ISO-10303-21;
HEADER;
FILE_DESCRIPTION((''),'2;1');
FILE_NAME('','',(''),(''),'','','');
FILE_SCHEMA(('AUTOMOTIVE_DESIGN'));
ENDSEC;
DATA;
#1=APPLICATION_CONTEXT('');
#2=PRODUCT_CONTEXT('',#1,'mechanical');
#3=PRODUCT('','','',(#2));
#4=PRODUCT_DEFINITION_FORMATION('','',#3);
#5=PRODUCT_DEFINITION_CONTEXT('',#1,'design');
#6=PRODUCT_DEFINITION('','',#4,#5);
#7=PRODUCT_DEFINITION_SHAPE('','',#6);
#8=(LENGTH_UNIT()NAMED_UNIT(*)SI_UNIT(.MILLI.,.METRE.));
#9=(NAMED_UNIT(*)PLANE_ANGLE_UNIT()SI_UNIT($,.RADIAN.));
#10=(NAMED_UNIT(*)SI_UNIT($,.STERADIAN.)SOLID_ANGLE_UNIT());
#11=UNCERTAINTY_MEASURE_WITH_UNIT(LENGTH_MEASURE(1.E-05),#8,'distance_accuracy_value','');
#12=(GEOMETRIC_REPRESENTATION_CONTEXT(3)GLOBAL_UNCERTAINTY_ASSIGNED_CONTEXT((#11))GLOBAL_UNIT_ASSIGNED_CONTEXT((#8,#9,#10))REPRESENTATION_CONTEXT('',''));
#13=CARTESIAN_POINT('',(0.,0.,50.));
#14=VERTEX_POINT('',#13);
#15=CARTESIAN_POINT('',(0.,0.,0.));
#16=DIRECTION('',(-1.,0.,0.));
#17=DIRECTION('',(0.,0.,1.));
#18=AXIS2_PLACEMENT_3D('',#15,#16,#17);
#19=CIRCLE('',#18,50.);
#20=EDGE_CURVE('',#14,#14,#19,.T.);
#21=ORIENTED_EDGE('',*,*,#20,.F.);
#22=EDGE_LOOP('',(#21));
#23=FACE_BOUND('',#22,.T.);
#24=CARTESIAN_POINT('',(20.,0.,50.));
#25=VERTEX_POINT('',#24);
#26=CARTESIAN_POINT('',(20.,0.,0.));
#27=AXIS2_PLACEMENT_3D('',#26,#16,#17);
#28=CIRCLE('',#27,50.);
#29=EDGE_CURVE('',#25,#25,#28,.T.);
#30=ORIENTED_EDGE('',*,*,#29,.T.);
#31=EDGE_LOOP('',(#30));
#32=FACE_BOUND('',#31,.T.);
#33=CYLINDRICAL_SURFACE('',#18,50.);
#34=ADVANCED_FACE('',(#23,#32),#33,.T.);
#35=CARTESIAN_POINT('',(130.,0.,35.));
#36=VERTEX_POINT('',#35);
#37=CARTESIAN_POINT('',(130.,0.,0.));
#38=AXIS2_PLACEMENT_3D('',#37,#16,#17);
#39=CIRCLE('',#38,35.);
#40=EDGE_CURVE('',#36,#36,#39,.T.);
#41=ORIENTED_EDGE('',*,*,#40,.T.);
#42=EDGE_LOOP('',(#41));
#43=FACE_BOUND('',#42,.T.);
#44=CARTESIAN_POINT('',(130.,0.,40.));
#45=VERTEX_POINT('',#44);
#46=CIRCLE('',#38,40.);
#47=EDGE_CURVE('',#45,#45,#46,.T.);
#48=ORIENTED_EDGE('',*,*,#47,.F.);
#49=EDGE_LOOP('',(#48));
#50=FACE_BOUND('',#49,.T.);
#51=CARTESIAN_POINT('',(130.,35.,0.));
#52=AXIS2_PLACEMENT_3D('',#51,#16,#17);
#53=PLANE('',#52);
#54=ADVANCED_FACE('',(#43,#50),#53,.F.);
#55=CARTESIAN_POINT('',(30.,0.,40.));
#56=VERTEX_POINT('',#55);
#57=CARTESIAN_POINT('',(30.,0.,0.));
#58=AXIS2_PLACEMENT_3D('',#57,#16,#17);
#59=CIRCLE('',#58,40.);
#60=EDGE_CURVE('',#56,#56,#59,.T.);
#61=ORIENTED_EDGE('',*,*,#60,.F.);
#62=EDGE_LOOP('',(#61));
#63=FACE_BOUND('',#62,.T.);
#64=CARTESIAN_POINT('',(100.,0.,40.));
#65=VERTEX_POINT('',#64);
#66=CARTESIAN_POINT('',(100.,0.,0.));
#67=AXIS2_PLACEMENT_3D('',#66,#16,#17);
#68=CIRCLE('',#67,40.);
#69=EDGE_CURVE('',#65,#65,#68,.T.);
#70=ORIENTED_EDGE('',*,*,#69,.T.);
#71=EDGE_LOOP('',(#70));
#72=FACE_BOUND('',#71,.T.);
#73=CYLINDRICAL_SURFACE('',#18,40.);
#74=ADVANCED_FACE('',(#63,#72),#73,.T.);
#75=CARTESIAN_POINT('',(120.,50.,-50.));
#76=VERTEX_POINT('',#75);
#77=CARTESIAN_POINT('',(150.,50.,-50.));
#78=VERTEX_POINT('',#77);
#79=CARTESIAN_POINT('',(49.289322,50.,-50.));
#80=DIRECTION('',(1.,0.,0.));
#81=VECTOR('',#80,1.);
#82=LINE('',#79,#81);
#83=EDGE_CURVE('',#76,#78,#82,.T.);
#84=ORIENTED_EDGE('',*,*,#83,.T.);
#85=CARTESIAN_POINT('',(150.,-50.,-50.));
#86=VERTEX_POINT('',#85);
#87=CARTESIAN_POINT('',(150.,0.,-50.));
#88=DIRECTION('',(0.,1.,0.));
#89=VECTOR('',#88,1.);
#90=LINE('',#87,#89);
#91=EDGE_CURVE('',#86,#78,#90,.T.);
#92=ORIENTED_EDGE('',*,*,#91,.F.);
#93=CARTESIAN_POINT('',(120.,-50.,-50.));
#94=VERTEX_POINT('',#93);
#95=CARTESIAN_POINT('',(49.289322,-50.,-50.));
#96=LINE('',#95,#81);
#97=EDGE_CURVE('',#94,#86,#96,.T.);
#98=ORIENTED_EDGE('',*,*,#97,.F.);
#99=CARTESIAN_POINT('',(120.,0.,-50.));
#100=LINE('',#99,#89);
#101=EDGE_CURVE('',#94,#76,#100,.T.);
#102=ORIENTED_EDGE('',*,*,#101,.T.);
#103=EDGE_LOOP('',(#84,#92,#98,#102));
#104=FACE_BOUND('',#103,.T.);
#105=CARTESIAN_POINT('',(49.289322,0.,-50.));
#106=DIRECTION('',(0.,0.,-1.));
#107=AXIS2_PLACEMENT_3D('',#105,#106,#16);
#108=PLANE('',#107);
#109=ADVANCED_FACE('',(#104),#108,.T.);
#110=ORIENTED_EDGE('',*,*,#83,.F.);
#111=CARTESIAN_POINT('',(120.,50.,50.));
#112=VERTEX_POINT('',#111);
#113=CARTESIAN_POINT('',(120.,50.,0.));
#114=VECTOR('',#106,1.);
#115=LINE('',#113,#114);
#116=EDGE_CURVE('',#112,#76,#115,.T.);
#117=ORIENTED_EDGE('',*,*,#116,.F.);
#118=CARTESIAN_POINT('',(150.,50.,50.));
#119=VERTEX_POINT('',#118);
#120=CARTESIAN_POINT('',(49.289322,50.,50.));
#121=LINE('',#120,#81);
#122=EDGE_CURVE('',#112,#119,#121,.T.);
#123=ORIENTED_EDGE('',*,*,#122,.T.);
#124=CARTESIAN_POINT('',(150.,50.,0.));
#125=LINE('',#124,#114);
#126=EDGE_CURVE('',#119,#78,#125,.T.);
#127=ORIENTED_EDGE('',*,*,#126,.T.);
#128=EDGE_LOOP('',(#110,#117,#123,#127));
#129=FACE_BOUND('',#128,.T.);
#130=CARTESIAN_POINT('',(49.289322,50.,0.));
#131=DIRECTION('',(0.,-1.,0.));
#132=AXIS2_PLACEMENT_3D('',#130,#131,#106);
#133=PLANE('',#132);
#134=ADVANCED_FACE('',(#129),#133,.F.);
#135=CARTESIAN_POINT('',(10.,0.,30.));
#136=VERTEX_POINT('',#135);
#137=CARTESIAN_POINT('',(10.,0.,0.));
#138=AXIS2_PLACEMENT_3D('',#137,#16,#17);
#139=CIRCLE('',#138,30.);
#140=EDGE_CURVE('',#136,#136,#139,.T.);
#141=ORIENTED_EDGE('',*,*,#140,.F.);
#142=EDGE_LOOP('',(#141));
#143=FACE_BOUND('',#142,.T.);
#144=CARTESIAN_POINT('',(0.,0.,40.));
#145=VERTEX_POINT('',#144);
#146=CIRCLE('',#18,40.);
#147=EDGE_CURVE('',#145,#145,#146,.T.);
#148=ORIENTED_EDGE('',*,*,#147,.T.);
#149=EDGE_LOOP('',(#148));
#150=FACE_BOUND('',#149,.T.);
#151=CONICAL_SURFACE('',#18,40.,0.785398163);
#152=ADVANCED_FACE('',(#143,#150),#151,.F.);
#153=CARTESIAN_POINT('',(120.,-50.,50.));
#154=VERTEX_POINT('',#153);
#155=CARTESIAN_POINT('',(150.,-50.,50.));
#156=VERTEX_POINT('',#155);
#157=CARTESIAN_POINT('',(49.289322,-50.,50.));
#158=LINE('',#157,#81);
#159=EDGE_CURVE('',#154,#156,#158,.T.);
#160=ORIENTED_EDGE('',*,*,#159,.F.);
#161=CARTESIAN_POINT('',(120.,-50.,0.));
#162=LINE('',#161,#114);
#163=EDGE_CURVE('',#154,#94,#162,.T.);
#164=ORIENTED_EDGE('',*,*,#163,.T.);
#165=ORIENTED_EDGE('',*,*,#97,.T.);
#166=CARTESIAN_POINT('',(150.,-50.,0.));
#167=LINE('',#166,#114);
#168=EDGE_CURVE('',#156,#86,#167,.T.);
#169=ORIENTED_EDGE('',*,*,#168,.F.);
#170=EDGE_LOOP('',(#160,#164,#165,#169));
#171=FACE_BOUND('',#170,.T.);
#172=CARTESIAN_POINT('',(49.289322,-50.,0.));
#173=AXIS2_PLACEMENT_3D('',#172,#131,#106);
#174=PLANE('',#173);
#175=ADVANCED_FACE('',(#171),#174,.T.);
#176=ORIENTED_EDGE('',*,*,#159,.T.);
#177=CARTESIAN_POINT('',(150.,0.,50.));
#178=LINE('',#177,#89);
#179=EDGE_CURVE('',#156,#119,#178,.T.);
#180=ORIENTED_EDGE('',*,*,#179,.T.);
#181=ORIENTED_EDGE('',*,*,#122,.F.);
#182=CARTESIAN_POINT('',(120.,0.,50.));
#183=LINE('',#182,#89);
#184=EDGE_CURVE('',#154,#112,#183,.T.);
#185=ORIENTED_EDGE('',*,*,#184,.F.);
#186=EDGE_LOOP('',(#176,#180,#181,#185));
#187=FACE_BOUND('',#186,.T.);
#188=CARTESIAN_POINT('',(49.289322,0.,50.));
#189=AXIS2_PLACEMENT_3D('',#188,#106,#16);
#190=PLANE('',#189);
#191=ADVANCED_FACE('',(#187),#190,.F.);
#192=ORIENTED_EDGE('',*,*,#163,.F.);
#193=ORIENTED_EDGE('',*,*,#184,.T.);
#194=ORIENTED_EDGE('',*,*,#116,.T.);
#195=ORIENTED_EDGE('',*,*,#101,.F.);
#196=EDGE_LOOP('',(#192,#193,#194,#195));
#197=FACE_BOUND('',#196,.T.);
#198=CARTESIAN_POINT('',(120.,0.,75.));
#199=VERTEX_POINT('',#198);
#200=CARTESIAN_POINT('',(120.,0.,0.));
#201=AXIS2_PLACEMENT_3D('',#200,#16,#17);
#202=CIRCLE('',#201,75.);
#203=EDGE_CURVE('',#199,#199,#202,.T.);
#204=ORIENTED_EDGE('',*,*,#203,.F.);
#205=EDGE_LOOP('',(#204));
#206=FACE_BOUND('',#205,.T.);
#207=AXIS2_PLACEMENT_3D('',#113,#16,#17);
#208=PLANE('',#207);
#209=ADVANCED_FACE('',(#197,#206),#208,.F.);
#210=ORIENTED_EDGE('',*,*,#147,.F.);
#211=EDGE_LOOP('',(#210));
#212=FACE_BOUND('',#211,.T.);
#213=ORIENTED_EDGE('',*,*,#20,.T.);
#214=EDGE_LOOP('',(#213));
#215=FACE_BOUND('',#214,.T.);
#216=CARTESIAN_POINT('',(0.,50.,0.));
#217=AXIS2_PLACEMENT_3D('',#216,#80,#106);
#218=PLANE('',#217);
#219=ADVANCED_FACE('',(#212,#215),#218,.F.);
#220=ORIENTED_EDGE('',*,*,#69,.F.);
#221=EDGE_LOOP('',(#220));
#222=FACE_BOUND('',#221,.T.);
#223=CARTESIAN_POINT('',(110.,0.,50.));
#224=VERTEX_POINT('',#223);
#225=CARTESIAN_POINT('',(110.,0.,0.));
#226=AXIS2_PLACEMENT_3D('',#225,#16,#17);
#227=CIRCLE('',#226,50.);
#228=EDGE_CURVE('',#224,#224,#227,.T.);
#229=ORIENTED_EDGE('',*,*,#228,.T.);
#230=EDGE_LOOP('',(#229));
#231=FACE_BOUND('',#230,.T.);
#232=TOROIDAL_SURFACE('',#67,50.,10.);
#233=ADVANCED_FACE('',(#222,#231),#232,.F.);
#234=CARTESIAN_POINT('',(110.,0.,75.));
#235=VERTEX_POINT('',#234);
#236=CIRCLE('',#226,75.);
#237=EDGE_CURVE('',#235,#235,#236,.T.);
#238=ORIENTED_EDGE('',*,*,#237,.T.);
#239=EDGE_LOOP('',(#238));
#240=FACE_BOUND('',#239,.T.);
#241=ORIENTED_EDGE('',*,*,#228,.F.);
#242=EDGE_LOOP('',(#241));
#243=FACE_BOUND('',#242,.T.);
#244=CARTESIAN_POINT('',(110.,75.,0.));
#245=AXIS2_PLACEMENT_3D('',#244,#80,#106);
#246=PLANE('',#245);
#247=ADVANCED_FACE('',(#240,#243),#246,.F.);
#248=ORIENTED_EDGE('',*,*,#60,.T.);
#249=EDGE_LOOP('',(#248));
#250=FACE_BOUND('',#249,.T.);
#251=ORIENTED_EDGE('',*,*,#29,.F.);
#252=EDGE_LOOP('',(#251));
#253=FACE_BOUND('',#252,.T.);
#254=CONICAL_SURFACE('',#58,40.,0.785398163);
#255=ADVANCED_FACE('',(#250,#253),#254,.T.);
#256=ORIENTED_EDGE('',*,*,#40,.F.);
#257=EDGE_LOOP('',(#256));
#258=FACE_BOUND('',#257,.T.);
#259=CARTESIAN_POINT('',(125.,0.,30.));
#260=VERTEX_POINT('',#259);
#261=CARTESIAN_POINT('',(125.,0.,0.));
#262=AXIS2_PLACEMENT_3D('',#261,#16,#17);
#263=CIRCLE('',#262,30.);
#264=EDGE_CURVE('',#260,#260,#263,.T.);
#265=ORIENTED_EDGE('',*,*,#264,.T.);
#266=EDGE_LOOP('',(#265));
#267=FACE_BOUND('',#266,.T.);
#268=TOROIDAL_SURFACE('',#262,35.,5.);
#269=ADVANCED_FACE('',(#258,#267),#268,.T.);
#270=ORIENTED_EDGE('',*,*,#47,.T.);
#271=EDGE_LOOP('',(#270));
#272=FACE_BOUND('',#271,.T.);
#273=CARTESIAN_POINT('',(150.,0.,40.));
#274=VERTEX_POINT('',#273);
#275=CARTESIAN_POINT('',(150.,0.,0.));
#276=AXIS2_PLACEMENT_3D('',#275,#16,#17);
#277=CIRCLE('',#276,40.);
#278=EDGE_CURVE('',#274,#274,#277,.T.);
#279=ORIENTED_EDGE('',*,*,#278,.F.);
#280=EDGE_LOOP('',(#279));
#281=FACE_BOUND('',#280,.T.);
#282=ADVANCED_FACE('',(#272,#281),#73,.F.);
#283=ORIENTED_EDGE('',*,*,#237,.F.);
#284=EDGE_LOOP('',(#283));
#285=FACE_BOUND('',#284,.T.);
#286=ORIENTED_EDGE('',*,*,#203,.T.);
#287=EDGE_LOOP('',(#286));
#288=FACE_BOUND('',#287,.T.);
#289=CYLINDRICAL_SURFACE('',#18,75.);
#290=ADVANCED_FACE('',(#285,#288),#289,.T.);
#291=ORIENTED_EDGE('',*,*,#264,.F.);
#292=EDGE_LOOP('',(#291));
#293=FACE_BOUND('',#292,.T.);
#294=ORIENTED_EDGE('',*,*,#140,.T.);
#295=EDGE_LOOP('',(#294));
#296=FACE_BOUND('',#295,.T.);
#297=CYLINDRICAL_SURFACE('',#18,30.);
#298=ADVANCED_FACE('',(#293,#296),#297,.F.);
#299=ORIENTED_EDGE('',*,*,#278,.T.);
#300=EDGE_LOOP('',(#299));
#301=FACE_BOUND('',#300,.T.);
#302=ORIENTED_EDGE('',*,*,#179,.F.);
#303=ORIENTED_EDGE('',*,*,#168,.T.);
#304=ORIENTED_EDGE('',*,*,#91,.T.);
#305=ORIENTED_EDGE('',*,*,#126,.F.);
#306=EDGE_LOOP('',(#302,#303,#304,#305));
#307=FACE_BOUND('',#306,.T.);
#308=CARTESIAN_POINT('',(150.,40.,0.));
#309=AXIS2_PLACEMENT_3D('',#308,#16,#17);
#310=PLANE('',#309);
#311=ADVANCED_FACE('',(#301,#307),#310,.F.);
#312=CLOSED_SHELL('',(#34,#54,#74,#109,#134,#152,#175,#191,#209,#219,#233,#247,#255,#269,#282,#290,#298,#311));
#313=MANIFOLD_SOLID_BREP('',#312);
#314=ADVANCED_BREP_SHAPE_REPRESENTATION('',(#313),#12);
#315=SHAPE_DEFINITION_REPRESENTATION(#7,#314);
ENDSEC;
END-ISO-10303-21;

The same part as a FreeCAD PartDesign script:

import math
import FreeCAD as App
import Part
import Sketcher

V = App.Vector
Q = App.Units.Quantity

doc = App.newDocument("Part")
body = doc.addObject("PartDesign::Body", "Body")

sketch1 = doc.addObject("Sketcher::SketchObject", "Sketch")
body.addObject(sketch1)
sketch1.AttachmentSupport = (doc.XY_Plane, [""])
sketch1.MapMode = "FlatFace"
sketch1.addGeometry(Part.LineSegment(V(0, 40, 0), V(10, 30, 0)), False)
sketch1.addGeometry(Part.LineSegment(V(10, 30, 0), V(125, 30, 0)), False)
sketch1.addGeometry(Part.ArcOfCircle(Part.Circle(V(125, 35, 0), V(0, 0, 1), 5), math.radians(-90), math.radians(0)), False)
sketch1.addGeometry(Part.LineSegment(V(130, 35, 0), V(130, 40, 0)), False)
sketch1.addGeometry(Part.LineSegment(V(130, 40, 0), V(150, 40, 0)), False)
sketch1.addGeometry(Part.LineSegment(V(150, 40, 0), V(150, 50, 0)), False)
sketch1.addGeometry(Part.LineSegment(V(150, 50, 0), V(120, 50, 0)), False)
sketch1.addGeometry(Part.LineSegment(V(120, 50, 0), V(120, 75, 0)), False)
sketch1.addGeometry(Part.LineSegment(V(120, 75, 0), V(110, 75, 0)), False)
sketch1.addGeometry(Part.LineSegment(V(110, 75, 0), V(110, 50, 0)), False)
sketch1.addGeometry(Part.ArcOfCircle(Part.Circle(V(100, 50, 0), V(0, 0, 1), 10), math.radians(-90), math.radians(0)), False)
sketch1.addGeometry(Part.LineSegment(V(100, 40, 0), V(30, 40, 0)), False)
sketch1.addGeometry(Part.LineSegment(V(30, 40, 0), V(20, 50, 0)), False)
sketch1.addGeometry(Part.LineSegment(V(20, 50, 0), V(0, 50, 0)), False)
sketch1.addGeometry(Part.LineSegment(V(0, 50, 0), V(0, 40, 0)), False)
sketch1.addConstraint(Sketcher.Constraint("Coincident", 0, 2, 1, 1))
sketch1.addConstraint(Sketcher.Constraint("Tangent", 1, 2, 2, 1))
sketch1.addConstraint(Sketcher.Constraint("Tangent", 2, 2, 3, 1))
sketch1.addConstraint(Sketcher.Constraint("Coincident", 3, 2, 4, 1))
sketch1.addConstraint(Sketcher.Constraint("Coincident", 4, 2, 5, 1))
sketch1.addConstraint(Sketcher.Constraint("Coincident", 5, 2, 6, 1))
sketch1.addConstraint(Sketcher.Constraint("Coincident", 6, 2, 7, 1))
sketch1.addConstraint(Sketcher.Constraint("Coincident", 7, 2, 8, 1))
sketch1.addConstraint(Sketcher.Constraint("Coincident", 8, 2, 9, 1))
sketch1.addConstraint(Sketcher.Constraint("Tangent", 9, 2, 10, 2))
sketch1.addConstraint(Sketcher.Constraint("Tangent", 10, 1, 11, 1))
sketch1.addConstraint(Sketcher.Constraint("Coincident", 11, 2, 12, 1))
sketch1.addConstraint(Sketcher.Constraint("Coincident", 12, 2, 13, 1))
sketch1.addConstraint(Sketcher.Constraint("Coincident", 13, 2, 14, 1))
sketch1.addConstraint(Sketcher.Constraint("Coincident", 14, 2, 0, 1))
sketch1.addConstraint(Sketcher.Constraint("Horizontal", 1))
sketch1.addConstraint(Sketcher.Constraint("Vertical", 3))
sketch1.addConstraint(Sketcher.Constraint("Horizontal", 4))
sketch1.addConstraint(Sketcher.Constraint("Vertical", 5))
sketch1.addConstraint(Sketcher.Constraint("Horizontal", 6))
sketch1.addConstraint(Sketcher.Constraint("Vertical", 7))
sketch1.addConstraint(Sketcher.Constraint("Horizontal", 8))
sketch1.addConstraint(Sketcher.Constraint("Vertical", 9))
sketch1.addConstraint(Sketcher.Constraint("Horizontal", 11))
sketch1.addConstraint(Sketcher.Constraint("Horizontal", 13))
sketch1.addConstraint(Sketcher.Constraint("Vertical", 14))
sketch1.addConstraint(Sketcher.Constraint("PointOnObject", 13, 2, -2))
sketch1.addConstraint(Sketcher.Constraint("Parallel", 0, 12))
sketch1.addConstraint(Sketcher.Constraint("Horizontal", 10, 3, 5, 2))
sketch1.addConstraint(Sketcher.Constraint("Horizontal", 4, 2, 10, 1))
sketch1.addConstraint(Sketcher.Constraint("Horizontal", 9, 2, 12, 2))
sketch1.addConstraint(Sketcher.Constraint("Horizontal", 11, 2, 14, 2))
sketch1.addConstraint(Sketcher.Constraint("Equal", 4, 13))
sketch1.addConstraint(Sketcher.Constraint("Equal", 8, 5))
sketch1.addConstraint(Sketcher.Constraint("Equal", 0, 12))
sketch1.addConstraint(Sketcher.Constraint("Radius", 2, 5.0))
sketch1.addConstraint(Sketcher.Constraint("Radius", 10, 10.0))
sketch1.addConstraint(Sketcher.Constraint("DistanceX", 1, 1, 1, 2, 115.0))
sketch1.addConstraint(Sketcher.Constraint("DistanceX", 4, 1, 4, 2, 20.0))
sketch1.addConstraint(Sketcher.Constraint("DistanceX", 6, 2, 6, 1, 30.0))
sketch1.addConstraint(Sketcher.Constraint("DistanceY", 7, 1, 7, 2, 25.0))
sketch1.addConstraint(Sketcher.Constraint("Angle", 0, Q("-45 deg")))
sketch1.addConstraint(Sketcher.Constraint("DistanceY", -1, 1, 2, 3, 35.0))
revolution = doc.addObject("PartDesign::Revolution", "Revolution")
body.addObject(revolution)
revolution.Profile = sketch1
revolution.ReferenceAxis = (sketch1, ["H_Axis"])
revolution.Angle = 360

sketch2 = doc.addObject("Sketcher::SketchObject", "Sketch001")
body.addObject(sketch2)
sketch2.AttachmentSupport = (doc.YZ_Plane, [""])
sketch2.MapMode = "FlatFace"
sketch2.AttachmentOffset = App.Placement(V(0, 0, 150), App.Rotation())
sketch2.addGeometry(Part.LineSegment(V(50, 50, 0), V(0, 50, 0)), False)
sketch2.addGeometry(Part.ArcOfCircle(Part.Circle(V(0, 0, 0), V(0, 0, 1), 50), math.radians(0), math.radians(90)), False)
sketch2.addGeometry(Part.LineSegment(V(50, 0, 0), V(50, 50, 0)), False)
sketch2.addGeometry(Part.LineSegment(V(0, 50, 0), V(-50, 50, 0)), False)
sketch2.addGeometry(Part.LineSegment(V(-50, 50, 0), V(-50, 0, 0)), False)
sketch2.addGeometry(Part.ArcOfCircle(Part.Circle(V(0, 0, 0), V(0, 0, 1), 50), math.radians(90), math.radians(180)), False)
sketch2.addGeometry(Part.ArcOfCircle(Part.Circle(V(0, 0, 0), V(0, 0, 1), 50), math.radians(-180), math.radians(-90)), False)
sketch2.addGeometry(Part.LineSegment(V(-50, 0, 0), V(-50, -50, 0)), False)
sketch2.addGeometry(Part.LineSegment(V(-50, -50, 0), V(0, -50, 0)), False)
sketch2.addGeometry(Part.ArcOfCircle(Part.Circle(V(0, 0, 0), V(0, 0, 1), 50), math.radians(-90), math.radians(0)), False)
sketch2.addGeometry(Part.LineSegment(V(0, -50, 0), V(50, -50, 0)), False)
sketch2.addGeometry(Part.LineSegment(V(50, -50, 0), V(50, 0, 0)), False)
sketch2.addConstraint(Sketcher.Constraint("Tangent", 0, 2, 1, 2))
sketch2.addConstraint(Sketcher.Constraint("Tangent", 1, 1, 2, 1))
sketch2.addConstraint(Sketcher.Constraint("Coincident", 2, 2, 0, 1))
sketch2.addConstraint(Sketcher.Constraint("Coincident", 3, 2, 4, 1))
sketch2.addConstraint(Sketcher.Constraint("Tangent", 4, 2, 5, 2))
sketch2.addConstraint(Sketcher.Constraint("Tangent", 5, 1, 3, 1))
sketch2.addConstraint(Sketcher.Constraint("Tangent", 6, 1, 7, 1))
sketch2.addConstraint(Sketcher.Constraint("Coincident", 7, 2, 8, 1))
sketch2.addConstraint(Sketcher.Constraint("Tangent", 8, 2, 6, 2))
sketch2.addConstraint(Sketcher.Constraint("Tangent", 9, 1, 10, 1))
sketch2.addConstraint(Sketcher.Constraint("Coincident", 10, 2, 11, 1))
sketch2.addConstraint(Sketcher.Constraint("Tangent", 11, 2, 9, 2))
sketch2.addConstraint(Sketcher.Constraint("Horizontal", 0))
sketch2.addConstraint(Sketcher.Constraint("Vertical", 2))
sketch2.addConstraint(Sketcher.Constraint("Horizontal", 3))
sketch2.addConstraint(Sketcher.Constraint("Vertical", 4))
sketch2.addConstraint(Sketcher.Constraint("Vertical", 7))
sketch2.addConstraint(Sketcher.Constraint("Horizontal", 8))
sketch2.addConstraint(Sketcher.Constraint("Horizontal", 10))
sketch2.addConstraint(Sketcher.Constraint("Vertical", 11))
sketch2.addConstraint(Sketcher.Constraint("Coincident", 1, 3, -1, 1))
sketch2.addConstraint(Sketcher.Constraint("Coincident", 5, 3, -1, 1))
sketch2.addConstraint(Sketcher.Constraint("Coincident", 6, 3, -1, 1))
sketch2.addConstraint(Sketcher.Constraint("Coincident", 9, 3, -1, 1))
sketch2.addConstraint(Sketcher.Constraint("Equal", 1, 5))
sketch2.addConstraint(Sketcher.Constraint("Equal", 5, 6))
sketch2.addConstraint(Sketcher.Constraint("Equal", 6, 9))
sketch2.addConstraint(Sketcher.Constraint("Radius", 1, 50.0))
pad1 = doc.addObject("PartDesign::Pad", "Pad")
body.addObject(pad1)
pad1.Profile = sketch2
pad1.Length = 30
pad1.Reversed = True

doc.recompute()
